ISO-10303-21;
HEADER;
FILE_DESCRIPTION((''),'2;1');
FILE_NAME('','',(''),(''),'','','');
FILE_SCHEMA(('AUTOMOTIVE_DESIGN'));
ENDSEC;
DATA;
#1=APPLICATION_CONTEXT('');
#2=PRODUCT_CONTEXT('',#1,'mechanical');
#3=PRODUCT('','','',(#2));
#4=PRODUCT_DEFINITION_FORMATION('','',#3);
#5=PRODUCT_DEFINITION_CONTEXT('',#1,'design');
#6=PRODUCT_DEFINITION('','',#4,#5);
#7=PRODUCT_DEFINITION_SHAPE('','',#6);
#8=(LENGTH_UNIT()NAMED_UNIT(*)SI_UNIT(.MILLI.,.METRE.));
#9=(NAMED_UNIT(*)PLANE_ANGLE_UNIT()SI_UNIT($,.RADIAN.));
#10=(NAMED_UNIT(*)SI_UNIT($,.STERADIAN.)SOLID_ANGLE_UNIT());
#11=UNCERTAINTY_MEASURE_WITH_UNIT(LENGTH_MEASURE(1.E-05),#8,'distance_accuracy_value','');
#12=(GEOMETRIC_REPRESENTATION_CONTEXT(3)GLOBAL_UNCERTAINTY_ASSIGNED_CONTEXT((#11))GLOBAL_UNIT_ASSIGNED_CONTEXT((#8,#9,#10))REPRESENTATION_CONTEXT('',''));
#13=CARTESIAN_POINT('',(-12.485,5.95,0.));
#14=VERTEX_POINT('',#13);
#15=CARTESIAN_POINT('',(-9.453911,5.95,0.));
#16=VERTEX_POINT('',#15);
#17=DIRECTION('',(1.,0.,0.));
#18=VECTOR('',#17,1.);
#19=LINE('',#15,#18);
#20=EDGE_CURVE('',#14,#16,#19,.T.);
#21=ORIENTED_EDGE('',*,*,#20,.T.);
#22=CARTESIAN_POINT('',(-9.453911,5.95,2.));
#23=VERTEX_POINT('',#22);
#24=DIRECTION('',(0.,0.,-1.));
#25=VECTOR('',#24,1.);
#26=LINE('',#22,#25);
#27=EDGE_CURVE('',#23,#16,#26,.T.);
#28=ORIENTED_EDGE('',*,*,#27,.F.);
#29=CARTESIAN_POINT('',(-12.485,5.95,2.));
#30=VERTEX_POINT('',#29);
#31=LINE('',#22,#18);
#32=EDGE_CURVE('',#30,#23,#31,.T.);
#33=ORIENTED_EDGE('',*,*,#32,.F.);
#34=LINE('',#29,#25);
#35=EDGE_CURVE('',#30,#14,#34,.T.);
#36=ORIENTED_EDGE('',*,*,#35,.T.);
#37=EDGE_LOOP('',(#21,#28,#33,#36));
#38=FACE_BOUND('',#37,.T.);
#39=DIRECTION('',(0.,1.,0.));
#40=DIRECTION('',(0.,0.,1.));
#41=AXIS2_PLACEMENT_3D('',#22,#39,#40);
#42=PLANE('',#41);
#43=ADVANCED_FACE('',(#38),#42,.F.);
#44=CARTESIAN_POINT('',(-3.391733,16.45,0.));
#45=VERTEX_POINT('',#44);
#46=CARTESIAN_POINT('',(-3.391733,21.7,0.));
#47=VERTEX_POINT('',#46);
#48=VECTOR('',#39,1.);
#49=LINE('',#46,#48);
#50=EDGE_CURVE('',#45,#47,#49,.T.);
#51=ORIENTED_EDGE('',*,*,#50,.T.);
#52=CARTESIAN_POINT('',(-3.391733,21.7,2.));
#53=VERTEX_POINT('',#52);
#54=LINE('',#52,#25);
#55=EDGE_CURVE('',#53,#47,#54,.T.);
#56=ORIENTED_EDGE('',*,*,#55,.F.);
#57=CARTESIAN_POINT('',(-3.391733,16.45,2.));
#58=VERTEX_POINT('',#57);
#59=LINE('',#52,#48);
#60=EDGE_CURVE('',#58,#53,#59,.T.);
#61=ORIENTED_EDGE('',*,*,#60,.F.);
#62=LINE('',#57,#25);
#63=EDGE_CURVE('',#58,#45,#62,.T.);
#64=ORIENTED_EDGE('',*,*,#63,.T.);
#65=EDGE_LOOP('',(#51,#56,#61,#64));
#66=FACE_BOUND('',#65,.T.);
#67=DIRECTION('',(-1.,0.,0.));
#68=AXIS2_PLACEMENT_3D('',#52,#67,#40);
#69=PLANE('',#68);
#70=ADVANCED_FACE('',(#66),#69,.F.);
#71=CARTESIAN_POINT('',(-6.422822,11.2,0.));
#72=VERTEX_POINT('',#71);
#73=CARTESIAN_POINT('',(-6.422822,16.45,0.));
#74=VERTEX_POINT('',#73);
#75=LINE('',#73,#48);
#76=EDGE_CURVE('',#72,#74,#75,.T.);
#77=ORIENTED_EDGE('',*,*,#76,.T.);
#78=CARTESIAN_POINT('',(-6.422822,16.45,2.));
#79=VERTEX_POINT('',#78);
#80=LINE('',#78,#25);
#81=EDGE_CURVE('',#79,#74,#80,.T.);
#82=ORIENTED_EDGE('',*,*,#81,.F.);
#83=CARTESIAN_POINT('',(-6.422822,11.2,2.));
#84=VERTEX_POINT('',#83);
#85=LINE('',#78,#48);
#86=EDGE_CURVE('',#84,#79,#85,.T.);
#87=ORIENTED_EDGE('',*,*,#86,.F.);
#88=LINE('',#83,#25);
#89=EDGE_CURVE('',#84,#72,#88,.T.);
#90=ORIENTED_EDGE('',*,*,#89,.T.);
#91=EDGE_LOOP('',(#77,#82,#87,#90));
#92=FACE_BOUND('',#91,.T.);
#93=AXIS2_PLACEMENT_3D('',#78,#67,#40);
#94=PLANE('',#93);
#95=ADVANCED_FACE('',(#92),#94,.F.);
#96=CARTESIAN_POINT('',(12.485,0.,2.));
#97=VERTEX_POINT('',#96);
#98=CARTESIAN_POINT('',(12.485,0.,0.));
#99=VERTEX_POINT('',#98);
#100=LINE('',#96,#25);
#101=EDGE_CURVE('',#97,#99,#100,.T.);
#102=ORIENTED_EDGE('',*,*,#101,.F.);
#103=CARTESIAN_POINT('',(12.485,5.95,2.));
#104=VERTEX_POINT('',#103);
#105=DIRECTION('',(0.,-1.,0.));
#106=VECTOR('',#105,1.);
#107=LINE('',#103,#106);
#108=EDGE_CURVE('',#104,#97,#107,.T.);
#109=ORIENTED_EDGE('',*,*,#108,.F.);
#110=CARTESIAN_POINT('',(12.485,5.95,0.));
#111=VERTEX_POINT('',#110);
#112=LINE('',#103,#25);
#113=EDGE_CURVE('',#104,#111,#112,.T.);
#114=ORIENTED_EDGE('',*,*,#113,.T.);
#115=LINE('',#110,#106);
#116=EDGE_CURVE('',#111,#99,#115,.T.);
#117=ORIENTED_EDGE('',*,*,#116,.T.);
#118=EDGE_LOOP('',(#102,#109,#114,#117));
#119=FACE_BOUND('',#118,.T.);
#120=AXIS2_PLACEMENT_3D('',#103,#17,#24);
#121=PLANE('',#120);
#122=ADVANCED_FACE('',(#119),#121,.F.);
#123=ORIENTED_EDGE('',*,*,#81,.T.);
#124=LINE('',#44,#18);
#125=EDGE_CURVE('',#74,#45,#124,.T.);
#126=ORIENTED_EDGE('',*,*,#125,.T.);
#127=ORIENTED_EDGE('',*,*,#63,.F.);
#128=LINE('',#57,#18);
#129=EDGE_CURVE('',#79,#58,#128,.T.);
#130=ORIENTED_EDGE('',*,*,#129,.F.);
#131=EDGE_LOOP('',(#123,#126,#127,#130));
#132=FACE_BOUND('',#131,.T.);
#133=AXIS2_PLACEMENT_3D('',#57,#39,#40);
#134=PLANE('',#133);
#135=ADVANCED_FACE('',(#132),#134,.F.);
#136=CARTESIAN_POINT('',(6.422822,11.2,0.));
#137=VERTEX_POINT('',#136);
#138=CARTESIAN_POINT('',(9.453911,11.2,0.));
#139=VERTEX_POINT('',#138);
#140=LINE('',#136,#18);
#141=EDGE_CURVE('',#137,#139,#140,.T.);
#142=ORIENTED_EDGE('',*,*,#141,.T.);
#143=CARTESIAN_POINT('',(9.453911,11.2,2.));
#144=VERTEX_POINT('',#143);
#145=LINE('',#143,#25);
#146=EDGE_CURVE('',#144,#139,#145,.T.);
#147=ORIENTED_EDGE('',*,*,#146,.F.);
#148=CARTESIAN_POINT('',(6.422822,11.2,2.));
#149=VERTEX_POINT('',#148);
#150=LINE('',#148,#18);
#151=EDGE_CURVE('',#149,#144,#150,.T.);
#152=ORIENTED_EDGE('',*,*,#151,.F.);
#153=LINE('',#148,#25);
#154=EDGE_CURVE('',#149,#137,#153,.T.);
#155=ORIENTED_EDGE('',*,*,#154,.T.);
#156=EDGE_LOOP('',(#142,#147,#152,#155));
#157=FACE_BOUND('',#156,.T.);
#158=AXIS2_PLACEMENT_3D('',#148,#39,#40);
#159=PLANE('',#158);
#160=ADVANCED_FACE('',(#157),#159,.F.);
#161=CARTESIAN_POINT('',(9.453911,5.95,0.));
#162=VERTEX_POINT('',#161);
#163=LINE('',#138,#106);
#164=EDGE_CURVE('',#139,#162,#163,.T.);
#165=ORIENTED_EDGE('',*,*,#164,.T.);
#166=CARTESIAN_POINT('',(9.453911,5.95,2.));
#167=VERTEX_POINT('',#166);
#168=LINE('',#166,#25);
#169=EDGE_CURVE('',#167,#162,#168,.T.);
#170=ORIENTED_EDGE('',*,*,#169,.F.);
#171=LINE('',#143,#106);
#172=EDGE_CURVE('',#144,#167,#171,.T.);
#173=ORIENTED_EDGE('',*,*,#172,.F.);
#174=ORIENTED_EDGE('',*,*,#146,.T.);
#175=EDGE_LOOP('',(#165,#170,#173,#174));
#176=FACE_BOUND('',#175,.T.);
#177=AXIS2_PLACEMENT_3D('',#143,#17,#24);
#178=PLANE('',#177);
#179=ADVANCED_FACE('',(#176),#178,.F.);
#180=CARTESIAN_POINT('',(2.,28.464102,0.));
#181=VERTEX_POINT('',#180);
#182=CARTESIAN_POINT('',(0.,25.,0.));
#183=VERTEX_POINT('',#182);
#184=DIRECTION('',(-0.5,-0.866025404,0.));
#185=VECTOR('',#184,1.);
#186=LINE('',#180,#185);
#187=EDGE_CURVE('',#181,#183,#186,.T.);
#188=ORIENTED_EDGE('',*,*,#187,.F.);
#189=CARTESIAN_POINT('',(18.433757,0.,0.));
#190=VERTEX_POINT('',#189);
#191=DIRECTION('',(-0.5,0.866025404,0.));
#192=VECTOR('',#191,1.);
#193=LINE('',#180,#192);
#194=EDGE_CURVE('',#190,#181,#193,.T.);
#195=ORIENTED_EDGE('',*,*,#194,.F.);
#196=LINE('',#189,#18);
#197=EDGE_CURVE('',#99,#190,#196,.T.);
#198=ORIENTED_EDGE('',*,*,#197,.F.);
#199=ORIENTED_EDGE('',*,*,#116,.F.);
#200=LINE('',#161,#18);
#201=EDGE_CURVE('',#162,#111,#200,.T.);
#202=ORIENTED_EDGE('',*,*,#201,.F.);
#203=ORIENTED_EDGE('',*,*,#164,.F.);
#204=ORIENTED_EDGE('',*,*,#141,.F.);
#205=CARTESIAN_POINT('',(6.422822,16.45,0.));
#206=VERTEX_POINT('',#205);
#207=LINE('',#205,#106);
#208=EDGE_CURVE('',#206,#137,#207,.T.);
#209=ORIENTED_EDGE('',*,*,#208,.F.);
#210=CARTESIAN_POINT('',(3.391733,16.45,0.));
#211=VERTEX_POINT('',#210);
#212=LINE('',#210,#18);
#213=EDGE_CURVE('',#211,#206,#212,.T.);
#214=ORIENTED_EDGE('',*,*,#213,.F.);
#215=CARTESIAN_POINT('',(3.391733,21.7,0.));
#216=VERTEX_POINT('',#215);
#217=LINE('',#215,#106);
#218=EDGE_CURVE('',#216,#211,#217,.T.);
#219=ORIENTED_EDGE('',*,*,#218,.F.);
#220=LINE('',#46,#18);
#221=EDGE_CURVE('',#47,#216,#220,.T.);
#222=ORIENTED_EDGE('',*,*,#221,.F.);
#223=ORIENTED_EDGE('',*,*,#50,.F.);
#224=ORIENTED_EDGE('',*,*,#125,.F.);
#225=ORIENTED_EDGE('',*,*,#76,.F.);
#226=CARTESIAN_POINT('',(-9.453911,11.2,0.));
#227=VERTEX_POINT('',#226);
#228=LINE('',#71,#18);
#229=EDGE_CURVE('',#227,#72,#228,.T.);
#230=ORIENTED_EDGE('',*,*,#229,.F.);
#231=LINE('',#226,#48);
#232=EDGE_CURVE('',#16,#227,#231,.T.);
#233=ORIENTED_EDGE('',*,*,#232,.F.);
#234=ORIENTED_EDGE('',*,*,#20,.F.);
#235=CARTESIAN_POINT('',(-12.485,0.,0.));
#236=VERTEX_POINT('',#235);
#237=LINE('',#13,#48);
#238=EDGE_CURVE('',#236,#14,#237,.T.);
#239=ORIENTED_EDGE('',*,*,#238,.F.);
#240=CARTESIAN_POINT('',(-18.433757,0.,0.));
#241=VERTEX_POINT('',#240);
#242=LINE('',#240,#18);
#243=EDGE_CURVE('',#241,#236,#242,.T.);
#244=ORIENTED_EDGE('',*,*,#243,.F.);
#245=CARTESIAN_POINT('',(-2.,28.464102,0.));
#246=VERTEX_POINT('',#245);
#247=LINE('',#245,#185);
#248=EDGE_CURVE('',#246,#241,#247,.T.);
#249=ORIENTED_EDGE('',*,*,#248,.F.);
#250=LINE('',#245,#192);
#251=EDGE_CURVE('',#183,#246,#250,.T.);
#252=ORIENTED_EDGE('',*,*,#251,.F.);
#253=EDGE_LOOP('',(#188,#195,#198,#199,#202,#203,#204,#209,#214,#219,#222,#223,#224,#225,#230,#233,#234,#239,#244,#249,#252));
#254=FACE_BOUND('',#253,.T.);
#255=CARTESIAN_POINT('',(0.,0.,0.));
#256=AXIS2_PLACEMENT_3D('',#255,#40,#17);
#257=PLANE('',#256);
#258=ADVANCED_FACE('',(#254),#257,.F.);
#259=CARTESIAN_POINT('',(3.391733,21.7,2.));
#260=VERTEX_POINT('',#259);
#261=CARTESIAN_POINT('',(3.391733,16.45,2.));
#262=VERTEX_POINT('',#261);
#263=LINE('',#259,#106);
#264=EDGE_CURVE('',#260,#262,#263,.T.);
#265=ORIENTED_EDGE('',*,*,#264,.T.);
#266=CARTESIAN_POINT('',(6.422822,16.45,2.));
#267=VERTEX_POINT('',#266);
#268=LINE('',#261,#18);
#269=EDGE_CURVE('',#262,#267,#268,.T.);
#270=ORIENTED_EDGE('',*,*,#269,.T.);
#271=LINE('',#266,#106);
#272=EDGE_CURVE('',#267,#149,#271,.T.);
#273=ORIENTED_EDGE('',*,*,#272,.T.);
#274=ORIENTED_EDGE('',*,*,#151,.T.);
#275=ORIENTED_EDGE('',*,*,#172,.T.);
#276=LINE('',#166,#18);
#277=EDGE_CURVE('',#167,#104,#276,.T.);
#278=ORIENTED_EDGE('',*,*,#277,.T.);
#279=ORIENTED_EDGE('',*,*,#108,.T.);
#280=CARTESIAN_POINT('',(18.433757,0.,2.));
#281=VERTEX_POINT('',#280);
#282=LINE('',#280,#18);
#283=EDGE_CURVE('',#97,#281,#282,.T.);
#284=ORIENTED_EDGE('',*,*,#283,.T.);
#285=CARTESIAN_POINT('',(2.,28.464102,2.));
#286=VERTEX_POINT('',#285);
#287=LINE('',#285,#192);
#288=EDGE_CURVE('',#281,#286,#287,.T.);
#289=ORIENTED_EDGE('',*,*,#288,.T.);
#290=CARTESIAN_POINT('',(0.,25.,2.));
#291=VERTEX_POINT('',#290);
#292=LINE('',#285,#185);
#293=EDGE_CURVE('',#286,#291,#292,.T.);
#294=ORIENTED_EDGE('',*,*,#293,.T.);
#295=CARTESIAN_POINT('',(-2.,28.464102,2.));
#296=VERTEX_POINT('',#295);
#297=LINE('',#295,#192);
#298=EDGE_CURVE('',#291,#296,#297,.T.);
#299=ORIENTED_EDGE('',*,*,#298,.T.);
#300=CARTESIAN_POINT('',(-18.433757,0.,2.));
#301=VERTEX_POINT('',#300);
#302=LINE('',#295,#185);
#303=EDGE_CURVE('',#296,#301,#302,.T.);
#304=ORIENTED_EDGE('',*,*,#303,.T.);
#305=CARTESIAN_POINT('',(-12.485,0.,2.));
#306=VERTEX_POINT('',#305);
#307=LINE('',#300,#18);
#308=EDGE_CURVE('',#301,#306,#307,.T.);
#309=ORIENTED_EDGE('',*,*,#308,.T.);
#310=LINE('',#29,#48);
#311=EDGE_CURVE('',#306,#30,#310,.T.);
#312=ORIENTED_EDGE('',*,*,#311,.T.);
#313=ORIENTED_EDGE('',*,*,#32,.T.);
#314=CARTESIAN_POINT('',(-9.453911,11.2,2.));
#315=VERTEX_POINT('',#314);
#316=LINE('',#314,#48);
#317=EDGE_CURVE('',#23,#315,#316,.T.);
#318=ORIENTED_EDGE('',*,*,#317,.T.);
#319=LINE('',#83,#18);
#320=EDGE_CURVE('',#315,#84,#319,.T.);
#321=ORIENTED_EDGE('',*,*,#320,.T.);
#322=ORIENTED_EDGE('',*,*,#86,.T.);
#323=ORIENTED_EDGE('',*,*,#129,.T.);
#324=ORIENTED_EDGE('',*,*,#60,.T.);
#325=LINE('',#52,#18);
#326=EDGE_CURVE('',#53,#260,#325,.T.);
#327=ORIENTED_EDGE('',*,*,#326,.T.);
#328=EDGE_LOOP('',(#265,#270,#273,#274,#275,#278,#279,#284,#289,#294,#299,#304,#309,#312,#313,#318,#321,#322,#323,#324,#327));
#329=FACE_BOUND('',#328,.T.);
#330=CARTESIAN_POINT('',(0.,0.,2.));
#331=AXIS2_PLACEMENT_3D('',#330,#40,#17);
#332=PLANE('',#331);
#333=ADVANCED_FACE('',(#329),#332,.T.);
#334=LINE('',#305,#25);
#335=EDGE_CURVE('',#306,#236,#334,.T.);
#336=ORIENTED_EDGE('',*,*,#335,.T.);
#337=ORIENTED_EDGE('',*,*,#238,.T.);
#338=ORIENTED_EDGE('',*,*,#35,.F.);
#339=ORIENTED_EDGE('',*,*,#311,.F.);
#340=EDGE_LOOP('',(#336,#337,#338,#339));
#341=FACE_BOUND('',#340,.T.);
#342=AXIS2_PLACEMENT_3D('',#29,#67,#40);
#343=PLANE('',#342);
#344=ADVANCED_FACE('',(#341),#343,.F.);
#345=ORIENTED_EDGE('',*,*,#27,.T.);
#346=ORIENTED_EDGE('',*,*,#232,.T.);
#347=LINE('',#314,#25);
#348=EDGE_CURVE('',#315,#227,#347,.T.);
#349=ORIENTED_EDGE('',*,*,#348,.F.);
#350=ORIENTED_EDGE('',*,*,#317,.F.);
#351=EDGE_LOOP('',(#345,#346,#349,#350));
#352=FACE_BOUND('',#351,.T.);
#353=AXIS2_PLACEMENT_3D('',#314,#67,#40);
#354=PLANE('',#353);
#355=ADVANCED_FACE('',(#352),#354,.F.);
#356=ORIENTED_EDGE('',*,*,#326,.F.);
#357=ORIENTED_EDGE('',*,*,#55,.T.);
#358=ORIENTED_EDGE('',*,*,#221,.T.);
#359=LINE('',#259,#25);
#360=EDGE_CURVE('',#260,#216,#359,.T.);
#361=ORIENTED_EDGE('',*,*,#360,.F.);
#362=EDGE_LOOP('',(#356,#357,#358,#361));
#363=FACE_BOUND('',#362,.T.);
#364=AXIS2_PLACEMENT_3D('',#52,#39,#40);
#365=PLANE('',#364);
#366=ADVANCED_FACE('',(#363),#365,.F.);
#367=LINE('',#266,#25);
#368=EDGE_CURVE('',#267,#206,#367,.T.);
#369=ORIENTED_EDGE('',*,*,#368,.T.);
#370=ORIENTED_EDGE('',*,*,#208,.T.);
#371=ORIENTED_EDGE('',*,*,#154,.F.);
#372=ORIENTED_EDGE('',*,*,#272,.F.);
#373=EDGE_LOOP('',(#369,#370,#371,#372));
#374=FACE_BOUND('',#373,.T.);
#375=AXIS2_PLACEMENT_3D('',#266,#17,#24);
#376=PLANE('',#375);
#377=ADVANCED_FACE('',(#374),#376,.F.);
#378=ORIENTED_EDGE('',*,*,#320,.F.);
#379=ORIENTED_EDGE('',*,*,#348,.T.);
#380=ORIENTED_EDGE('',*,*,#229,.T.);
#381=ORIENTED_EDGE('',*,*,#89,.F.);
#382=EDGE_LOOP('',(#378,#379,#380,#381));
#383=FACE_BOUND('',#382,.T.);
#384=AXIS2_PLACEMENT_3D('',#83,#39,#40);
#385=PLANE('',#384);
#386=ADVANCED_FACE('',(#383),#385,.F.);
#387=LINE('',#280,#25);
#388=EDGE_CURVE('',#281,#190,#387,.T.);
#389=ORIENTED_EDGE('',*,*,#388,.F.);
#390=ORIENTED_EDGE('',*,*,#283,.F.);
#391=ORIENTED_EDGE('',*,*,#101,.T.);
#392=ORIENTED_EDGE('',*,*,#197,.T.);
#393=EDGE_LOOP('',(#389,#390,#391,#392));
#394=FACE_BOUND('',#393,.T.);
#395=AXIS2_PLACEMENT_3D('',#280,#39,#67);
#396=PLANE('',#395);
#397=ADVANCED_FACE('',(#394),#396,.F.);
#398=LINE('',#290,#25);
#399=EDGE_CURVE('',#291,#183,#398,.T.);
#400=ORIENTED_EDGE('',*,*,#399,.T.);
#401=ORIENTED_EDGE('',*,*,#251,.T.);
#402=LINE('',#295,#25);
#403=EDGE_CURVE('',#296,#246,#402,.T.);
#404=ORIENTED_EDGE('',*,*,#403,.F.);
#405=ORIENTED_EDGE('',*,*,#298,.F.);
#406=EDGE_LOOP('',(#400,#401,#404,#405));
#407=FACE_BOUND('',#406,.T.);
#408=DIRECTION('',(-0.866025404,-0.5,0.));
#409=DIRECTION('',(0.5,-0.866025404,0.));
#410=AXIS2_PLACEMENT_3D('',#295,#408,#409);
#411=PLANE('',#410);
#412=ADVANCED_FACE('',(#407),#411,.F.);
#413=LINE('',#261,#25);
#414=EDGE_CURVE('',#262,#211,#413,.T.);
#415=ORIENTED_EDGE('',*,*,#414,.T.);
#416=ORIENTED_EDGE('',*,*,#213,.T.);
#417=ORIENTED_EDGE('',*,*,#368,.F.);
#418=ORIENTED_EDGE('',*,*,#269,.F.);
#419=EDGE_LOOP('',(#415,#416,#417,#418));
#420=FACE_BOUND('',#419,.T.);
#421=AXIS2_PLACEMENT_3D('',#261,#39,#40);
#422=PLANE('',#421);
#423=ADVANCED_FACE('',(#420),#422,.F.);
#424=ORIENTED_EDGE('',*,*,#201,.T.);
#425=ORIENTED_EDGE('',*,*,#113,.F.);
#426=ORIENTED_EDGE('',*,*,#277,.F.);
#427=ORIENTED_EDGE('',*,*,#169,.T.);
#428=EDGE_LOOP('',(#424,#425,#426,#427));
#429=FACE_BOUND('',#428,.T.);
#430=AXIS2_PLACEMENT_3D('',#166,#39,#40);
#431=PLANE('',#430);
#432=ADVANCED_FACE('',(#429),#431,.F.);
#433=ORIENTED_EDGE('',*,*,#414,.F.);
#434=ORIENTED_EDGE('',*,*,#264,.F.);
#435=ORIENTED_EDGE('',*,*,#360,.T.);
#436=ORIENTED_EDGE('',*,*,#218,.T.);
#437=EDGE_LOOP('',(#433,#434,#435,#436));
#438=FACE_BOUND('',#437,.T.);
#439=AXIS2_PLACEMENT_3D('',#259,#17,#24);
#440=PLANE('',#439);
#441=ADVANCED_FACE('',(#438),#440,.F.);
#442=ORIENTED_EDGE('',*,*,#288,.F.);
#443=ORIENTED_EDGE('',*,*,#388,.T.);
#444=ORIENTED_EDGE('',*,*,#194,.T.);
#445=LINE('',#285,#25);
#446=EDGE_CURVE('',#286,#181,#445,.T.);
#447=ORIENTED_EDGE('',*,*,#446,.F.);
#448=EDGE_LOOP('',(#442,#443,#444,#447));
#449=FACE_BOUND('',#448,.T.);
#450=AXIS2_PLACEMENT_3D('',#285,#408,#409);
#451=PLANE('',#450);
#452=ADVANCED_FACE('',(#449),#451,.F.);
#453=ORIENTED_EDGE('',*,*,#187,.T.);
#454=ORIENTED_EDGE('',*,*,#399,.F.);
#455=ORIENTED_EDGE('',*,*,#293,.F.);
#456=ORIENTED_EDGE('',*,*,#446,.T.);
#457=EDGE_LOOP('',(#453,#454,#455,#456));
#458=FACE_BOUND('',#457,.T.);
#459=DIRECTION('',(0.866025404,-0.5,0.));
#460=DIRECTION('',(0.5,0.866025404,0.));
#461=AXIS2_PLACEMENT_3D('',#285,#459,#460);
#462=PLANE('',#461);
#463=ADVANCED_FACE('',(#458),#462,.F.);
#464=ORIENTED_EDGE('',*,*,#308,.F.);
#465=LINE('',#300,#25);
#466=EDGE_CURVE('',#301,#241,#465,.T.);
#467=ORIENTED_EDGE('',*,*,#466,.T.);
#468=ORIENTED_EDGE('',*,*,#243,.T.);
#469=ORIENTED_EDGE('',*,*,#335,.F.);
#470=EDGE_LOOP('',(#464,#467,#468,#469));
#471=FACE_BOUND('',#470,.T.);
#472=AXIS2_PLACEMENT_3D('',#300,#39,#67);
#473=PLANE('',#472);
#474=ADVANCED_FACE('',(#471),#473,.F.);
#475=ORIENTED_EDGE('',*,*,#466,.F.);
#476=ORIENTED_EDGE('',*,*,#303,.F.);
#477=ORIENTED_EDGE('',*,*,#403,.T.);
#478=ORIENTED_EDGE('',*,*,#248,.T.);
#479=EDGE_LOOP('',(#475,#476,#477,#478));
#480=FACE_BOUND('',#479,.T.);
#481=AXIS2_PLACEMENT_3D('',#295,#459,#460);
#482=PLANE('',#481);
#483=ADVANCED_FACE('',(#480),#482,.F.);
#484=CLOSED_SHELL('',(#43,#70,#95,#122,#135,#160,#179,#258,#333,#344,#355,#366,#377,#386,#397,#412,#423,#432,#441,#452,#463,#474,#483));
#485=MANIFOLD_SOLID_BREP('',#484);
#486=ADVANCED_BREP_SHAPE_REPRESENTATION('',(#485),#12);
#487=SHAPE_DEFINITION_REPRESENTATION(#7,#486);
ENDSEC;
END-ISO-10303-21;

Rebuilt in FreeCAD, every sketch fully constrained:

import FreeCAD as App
import Part
import Sketcher
from FreeCAD import Vector
Q = App.Units.Quantity


def add_polygon(sketch, points):
    """Adds a closed chain of lines whose ends are joined by coincident constraints."""
    first, n = sketch.GeometryCount, len(points)
    for a, b in zip(points, points[1:] + points[:1]):
        sketch.addGeometry(Part.LineSegment(App.Vector(*a, 0), App.Vector(*b, 0)), False)
    for i in range(n):
        sketch.addConstraint(Sketcher.Constraint("Coincident", first + i, 2, first + (i + 1) % n, 1))

doc = App.newDocument("Part")
body = doc.addObject("PartDesign::Body", "Body")

# Sketch on XY plane
sketch1 = body.newObject("Sketcher::SketchObject", "Sketch")
sketch1.AttachmentSupport = (doc.getObject("XY_Plane"), [""])
sketch1.MapMode = "FlatFace"
add_polygon(sketch1, [(-12.5, 0), (-12.5, 6), (-9.5, 6), (-9.5, 11.2), (-6.4, 11.2), (-6.4, 16.4), (-3.4, 16.4), (-3.4, 21.7), (3.4, 21.7), (3.4, 16.4), (6.4, 16.4), (6.4, 11.2), (9.5, 11.2), (9.5, 6), (12.5, 6), (12.5, 0), (18.4, 0), (2, 28.5), (0, 25), (-2, 28.5), (-18.4, 0)])  # lines 0-20
sketch1.addConstraint([
    Sketcher.Constraint("Vertical", 0),
    Sketcher.Constraint("Horizontal", 1),
    Sketcher.Constraint("Vertical", 2),
    Sketcher.Constraint("Horizontal", 3),
    Sketcher.Constraint("Vertical", 4),
    Sketcher.Constraint("Horizontal", 5),
    Sketcher.Constraint("Vertical", 6),
    Sketcher.Constraint("Horizontal", 7),
    Sketcher.Constraint("Vertical", 8),
    Sketcher.Constraint("Horizontal", 9),
    Sketcher.Constraint("Vertical", 10),
    Sketcher.Constraint("Horizontal", 11),
    Sketcher.Constraint("Vertical", 12),
    Sketcher.Constraint("Horizontal", 13),
    Sketcher.Constraint("Vertical", 14),
    Sketcher.Constraint("Horizontal", 15),
    Sketcher.Constraint("Horizontal", 20),
    Sketcher.Constraint("Symmetric", 15, 2, 19, 2, -1, 1),
    Sketcher.Constraint("Symmetric", 5, 2, 8, 2, -2),
    Sketcher.Constraint("Symmetric", 3, 2, 10, 2, -2),
    Sketcher.Constraint("Symmetric", 1, 2, 12, 2, -2),
    Sketcher.Constraint("Symmetric", 16, 2, 18, 2, -2),
    Sketcher.Constraint("Symmetric", 14, 2, 20, 2, -2),
    Sketcher.Constraint("PointOnObject", 17, 2, -2),
    Sketcher.Constraint("Parallel", 16, 18),
    Sketcher.Constraint("Equal", 1, 3),
    Sketcher.Constraint("Equal", 3, 5),
    Sketcher.Constraint("Equal", 2, 4),
    Sketcher.Constraint("Equal", 4, 6),
    Sketcher.Constraint("Angle", 16, Q("120 deg")),
    Sketcher.Constraint("Distance", 17, 4.0),
    Sketcher.Constraint("DistanceY", -1, 1, 17, 2, 25.0),
    Sketcher.Constraint("DistanceY", 0, 1, 0, 2, 5.95),
    Sketcher.Constraint("DistanceY", 2, 1, 2, 2, 5.25),
    Sketcher.Constraint("DistanceX", 0, 2, -1, 1, 12.485),
    Sketcher.Constraint("DistanceX", 1, 1, 1, 2, 3.031089),
])
pad1 = body.newObject("PartDesign::Pad", "Pad")
pad1.Profile = sketch1
pad1.Length = 2

doc.recompute()
